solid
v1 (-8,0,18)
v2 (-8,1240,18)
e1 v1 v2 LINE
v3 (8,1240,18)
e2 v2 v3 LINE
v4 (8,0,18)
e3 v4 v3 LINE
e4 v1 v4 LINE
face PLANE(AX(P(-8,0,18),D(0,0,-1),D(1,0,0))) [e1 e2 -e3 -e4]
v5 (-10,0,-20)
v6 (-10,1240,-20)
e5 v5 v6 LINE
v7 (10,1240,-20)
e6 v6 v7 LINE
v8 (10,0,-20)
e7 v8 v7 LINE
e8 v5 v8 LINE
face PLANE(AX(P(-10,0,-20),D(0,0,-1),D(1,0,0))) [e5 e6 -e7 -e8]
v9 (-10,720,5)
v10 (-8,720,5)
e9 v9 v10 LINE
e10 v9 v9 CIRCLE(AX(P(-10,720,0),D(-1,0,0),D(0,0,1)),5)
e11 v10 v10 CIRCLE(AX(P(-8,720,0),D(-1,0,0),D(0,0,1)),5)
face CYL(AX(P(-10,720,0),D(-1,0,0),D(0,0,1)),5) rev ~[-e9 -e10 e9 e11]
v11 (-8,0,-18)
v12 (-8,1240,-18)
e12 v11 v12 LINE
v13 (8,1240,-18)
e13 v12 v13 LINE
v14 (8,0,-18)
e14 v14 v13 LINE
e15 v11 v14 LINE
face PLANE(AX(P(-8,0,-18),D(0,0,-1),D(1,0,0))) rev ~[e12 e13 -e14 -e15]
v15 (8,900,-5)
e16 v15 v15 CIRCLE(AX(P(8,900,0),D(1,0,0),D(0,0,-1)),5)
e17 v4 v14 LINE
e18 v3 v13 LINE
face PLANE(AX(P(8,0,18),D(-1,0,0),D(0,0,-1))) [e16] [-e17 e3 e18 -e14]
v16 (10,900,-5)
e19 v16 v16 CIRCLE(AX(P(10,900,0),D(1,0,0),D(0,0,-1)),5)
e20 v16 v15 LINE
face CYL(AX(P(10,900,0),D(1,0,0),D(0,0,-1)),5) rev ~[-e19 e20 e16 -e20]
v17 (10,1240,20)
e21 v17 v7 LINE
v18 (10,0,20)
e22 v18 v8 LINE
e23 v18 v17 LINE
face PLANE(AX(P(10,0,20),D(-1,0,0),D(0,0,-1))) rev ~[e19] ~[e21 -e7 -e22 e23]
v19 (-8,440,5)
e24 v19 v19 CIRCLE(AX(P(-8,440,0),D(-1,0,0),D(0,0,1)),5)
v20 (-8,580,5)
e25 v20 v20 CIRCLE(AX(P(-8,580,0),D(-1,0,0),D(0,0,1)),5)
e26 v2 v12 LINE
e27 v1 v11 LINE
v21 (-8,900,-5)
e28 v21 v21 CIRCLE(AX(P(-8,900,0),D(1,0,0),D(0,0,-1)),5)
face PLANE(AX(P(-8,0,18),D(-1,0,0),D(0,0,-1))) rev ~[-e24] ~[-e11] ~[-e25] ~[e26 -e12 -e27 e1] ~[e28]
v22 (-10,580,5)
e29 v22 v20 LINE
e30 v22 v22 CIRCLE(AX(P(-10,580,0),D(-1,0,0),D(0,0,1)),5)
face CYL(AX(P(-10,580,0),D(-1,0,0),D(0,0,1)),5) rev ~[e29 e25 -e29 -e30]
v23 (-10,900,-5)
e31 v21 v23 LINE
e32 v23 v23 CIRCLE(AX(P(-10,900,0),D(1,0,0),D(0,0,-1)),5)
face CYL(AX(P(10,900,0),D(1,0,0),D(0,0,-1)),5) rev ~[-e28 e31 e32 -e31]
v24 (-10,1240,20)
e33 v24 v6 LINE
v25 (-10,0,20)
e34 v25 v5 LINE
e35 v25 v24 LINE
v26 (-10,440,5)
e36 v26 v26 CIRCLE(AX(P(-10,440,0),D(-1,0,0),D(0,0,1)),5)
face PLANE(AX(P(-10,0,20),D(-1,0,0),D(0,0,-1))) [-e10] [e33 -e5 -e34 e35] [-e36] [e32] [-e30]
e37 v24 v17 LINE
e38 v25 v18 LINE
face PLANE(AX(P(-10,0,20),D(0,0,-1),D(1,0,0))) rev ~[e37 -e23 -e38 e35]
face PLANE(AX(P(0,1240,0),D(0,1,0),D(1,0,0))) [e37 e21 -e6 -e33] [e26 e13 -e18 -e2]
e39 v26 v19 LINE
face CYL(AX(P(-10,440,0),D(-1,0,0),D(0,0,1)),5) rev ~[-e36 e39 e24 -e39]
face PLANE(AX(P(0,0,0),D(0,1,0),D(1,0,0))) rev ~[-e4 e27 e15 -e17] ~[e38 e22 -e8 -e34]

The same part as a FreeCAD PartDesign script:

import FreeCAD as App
import Part
import Sketcher

doc = App.newDocument("Part")
params = doc.addObject("Spreadsheet::Sheet", "Params")
for row, (alias, value) in enumerate([
    ("sketch1_width", "20 mm"),
    ("sketch1_width2", "16 mm"),
    ("sketch1_height", "40 mm"),
    ("sketch1_height2", "36 mm"),
    ("pad1_length", "1240 mm"),
    ("sketch2_diameter", "10 mm"),
    ("sketch3_diameter", "10 mm"),
    ("pocket2_length", "10 mm"),
], start=1):
    params.set(f"A{row}", alias)
    params.set(f"B{row}", "=" + value)
    params.setAlias(f"B{row}", alias)

body = doc.addObject("PartDesign::Body", "Body")

sketch1 = body.newObject("Sketcher::SketchObject", "Sketch")
sketch1.AttachmentSupport = (doc.getObject("XZ_Plane"), [""])
sketch1.MapMode = "FlatFace"
sketch1.addGeometry([
    Part.LineSegment(App.Vector(-10, -20, 0), App.Vector(-10, 20, 0)),
    Part.LineSegment(App.Vector(-10, 20, 0), App.Vector(10, 20, 0)),
    Part.LineSegment(App.Vector(10, 20, 0), App.Vector(10, -20, 0)),
    Part.LineSegment(App.Vector(10, -20, 0), App.Vector(-10, -20, 0)),
    Part.LineSegment(App.Vector(8, 18, 0), App.Vector(-8, 18, 0)),
    Part.LineSegment(App.Vector(-8, 18, 0), App.Vector(-8, -18, 0)),
    Part.LineSegment(App.Vector(-8, -18, 0), App.Vector(8, -18, 0)),
    Part.LineSegment(App.Vector(8, -18, 0), App.Vector(8, 18, 0)),
], False)
sketch1.addConstraint([
    Sketcher.Constraint("Coincident", 0, 2, 1, 1),
    Sketcher.Constraint("Coincident", 1, 2, 2, 1),
    Sketcher.Constraint("Coincident", 2, 2, 3, 1),
    Sketcher.Constraint("Coincident", 3, 2, 0, 1),
    Sketcher.Constraint("Coincident", 4, 2, 5, 1),
    Sketcher.Constraint("Coincident", 5, 2, 6, 1),
    Sketcher.Constraint("Coincident", 6, 2, 7, 1),
    Sketcher.Constraint("Coincident", 7, 2, 4, 1),
    Sketcher.Constraint("Vertical", 0),
    Sketcher.Constraint("Horizontal", 1),
    Sketcher.Constraint("Vertical", 2),
    Sketcher.Constraint("Horizontal", 3),
    Sketcher.Constraint("Horizontal", 4),
    Sketcher.Constraint("Vertical", 5),
    Sketcher.Constraint("Horizontal", 6),
    Sketcher.Constraint("Vertical", 7),
    Sketcher.Constraint("Symmetric", 0, 2, 2, 2, -1, 1),
    Sketcher.Constraint("Symmetric", 4, 2, 6, 2, -1, 1),
    Sketcher.Constraint("DistanceX", 1, 1, 1, 2, 20.0),
    Sketcher.Constraint("DistanceX", 4, 2, 4, 1, 16.0),
    Sketcher.Constraint("DistanceY", 0, 1, 0, 2, 40.0),
    Sketcher.Constraint("DistanceY", 5, 2, 5, 1, 36.0),
])
sketch1.setExpression("Constraints[18]", "Params.sketch1_width")
sketch1.setExpression("Constraints[19]", "Params.sketch1_width2")
sketch1.setExpression("Constraints[20]", "Params.sketch1_height")
sketch1.setExpression("Constraints[21]", "Params.sketch1_height2")
pad1 = body.newObject("PartDesign::Pad", "Pad")
pad1.Profile = sketch1
pad1.setExpression("Length", "Params.pad1_length")
pad1.Reversed = True

sketch2 = body.newObject("Sketcher::SketchObject", "Sketch001")
sketch2.AttachmentSupport = (doc.getObject("YZ_Plane"), [""])
sketch2.MapMode = "FlatFace"
sketch2.AttachmentOffset = App.Placement(App.Vector(0, 0, 10), App.Rotation())
sketch2.addGeometry(Part.Circle(App.Vector(900, 0, 0), App.Vector(0, 0, 1), 5), False)
sketch2.addConstraint([
    Sketcher.Constraint("PointOnObject", 0, 3, -1),
    Sketcher.Constraint("Diameter", 0, 10.0),
    Sketcher.Constraint("DistanceX", -1, 1, 0, 3, 900.0),
])
sketch2.setExpression("Constraints[1]", "Params.sketch2_diameter")
pocket1 = body.newObject("PartDesign::Pocket", "Pocket")
pocket1.Profile = sketch2
pocket1.Type = "ThroughAll"

sketch3 = body.newObject("Sketcher::SketchObject", "Sketch002")
sketch3.AttachmentSupport = (doc.getObject("YZ_Plane"), [""])
sketch3.MapMode = "FlatFace"
sketch3.AttachmentOffset = App.Placement(App.Vector(0, 0, -10), App.Rotation())
sketch3.addGeometry([
    Part.Circle(App.Vector(720, 0, 0), App.Vector(0, 0, 1), 5),
    Part.Circle(App.Vector(580, 0, 0), App.Vector(0, 0, 1), 5),
    Part.Circle(App.Vector(440, 0, 0), App.Vector(0, 0, 1), 5),
], False)
sketch3.addConstraint([
    Sketcher.Constraint("Equal", 0, 1),
    Sketcher.Constraint("Equal", 1, 2),
    Sketcher.Constraint("PointOnObject", 0, 3, -1),
    Sketcher.Constraint("PointOnObject", 1, 3, -1),
    Sketcher.Constraint("PointOnObject", 2, 3, -1),
    Sketcher.Constraint("Diameter", 0, 10.0),
    Sketcher.Constraint("DistanceX", -1, 1, 0, 3, 720.0),
    Sketcher.Constraint("DistanceX", -1, 1, 1, 3, 580.0),
    Sketcher.Constraint("DistanceX", -1, 1, 2, 3, 440.0),
])
sketch3.setExpression("Constraints[5]", "Params.sketch3_diameter")
pocket2 = body.newObject("PartDesign::Pocket", "Pocket001")
pocket2.Profile = sketch3
pocket2.setExpression("Length", "Params.pocket2_length")
pocket2.Reversed = True

doc.recompute()
